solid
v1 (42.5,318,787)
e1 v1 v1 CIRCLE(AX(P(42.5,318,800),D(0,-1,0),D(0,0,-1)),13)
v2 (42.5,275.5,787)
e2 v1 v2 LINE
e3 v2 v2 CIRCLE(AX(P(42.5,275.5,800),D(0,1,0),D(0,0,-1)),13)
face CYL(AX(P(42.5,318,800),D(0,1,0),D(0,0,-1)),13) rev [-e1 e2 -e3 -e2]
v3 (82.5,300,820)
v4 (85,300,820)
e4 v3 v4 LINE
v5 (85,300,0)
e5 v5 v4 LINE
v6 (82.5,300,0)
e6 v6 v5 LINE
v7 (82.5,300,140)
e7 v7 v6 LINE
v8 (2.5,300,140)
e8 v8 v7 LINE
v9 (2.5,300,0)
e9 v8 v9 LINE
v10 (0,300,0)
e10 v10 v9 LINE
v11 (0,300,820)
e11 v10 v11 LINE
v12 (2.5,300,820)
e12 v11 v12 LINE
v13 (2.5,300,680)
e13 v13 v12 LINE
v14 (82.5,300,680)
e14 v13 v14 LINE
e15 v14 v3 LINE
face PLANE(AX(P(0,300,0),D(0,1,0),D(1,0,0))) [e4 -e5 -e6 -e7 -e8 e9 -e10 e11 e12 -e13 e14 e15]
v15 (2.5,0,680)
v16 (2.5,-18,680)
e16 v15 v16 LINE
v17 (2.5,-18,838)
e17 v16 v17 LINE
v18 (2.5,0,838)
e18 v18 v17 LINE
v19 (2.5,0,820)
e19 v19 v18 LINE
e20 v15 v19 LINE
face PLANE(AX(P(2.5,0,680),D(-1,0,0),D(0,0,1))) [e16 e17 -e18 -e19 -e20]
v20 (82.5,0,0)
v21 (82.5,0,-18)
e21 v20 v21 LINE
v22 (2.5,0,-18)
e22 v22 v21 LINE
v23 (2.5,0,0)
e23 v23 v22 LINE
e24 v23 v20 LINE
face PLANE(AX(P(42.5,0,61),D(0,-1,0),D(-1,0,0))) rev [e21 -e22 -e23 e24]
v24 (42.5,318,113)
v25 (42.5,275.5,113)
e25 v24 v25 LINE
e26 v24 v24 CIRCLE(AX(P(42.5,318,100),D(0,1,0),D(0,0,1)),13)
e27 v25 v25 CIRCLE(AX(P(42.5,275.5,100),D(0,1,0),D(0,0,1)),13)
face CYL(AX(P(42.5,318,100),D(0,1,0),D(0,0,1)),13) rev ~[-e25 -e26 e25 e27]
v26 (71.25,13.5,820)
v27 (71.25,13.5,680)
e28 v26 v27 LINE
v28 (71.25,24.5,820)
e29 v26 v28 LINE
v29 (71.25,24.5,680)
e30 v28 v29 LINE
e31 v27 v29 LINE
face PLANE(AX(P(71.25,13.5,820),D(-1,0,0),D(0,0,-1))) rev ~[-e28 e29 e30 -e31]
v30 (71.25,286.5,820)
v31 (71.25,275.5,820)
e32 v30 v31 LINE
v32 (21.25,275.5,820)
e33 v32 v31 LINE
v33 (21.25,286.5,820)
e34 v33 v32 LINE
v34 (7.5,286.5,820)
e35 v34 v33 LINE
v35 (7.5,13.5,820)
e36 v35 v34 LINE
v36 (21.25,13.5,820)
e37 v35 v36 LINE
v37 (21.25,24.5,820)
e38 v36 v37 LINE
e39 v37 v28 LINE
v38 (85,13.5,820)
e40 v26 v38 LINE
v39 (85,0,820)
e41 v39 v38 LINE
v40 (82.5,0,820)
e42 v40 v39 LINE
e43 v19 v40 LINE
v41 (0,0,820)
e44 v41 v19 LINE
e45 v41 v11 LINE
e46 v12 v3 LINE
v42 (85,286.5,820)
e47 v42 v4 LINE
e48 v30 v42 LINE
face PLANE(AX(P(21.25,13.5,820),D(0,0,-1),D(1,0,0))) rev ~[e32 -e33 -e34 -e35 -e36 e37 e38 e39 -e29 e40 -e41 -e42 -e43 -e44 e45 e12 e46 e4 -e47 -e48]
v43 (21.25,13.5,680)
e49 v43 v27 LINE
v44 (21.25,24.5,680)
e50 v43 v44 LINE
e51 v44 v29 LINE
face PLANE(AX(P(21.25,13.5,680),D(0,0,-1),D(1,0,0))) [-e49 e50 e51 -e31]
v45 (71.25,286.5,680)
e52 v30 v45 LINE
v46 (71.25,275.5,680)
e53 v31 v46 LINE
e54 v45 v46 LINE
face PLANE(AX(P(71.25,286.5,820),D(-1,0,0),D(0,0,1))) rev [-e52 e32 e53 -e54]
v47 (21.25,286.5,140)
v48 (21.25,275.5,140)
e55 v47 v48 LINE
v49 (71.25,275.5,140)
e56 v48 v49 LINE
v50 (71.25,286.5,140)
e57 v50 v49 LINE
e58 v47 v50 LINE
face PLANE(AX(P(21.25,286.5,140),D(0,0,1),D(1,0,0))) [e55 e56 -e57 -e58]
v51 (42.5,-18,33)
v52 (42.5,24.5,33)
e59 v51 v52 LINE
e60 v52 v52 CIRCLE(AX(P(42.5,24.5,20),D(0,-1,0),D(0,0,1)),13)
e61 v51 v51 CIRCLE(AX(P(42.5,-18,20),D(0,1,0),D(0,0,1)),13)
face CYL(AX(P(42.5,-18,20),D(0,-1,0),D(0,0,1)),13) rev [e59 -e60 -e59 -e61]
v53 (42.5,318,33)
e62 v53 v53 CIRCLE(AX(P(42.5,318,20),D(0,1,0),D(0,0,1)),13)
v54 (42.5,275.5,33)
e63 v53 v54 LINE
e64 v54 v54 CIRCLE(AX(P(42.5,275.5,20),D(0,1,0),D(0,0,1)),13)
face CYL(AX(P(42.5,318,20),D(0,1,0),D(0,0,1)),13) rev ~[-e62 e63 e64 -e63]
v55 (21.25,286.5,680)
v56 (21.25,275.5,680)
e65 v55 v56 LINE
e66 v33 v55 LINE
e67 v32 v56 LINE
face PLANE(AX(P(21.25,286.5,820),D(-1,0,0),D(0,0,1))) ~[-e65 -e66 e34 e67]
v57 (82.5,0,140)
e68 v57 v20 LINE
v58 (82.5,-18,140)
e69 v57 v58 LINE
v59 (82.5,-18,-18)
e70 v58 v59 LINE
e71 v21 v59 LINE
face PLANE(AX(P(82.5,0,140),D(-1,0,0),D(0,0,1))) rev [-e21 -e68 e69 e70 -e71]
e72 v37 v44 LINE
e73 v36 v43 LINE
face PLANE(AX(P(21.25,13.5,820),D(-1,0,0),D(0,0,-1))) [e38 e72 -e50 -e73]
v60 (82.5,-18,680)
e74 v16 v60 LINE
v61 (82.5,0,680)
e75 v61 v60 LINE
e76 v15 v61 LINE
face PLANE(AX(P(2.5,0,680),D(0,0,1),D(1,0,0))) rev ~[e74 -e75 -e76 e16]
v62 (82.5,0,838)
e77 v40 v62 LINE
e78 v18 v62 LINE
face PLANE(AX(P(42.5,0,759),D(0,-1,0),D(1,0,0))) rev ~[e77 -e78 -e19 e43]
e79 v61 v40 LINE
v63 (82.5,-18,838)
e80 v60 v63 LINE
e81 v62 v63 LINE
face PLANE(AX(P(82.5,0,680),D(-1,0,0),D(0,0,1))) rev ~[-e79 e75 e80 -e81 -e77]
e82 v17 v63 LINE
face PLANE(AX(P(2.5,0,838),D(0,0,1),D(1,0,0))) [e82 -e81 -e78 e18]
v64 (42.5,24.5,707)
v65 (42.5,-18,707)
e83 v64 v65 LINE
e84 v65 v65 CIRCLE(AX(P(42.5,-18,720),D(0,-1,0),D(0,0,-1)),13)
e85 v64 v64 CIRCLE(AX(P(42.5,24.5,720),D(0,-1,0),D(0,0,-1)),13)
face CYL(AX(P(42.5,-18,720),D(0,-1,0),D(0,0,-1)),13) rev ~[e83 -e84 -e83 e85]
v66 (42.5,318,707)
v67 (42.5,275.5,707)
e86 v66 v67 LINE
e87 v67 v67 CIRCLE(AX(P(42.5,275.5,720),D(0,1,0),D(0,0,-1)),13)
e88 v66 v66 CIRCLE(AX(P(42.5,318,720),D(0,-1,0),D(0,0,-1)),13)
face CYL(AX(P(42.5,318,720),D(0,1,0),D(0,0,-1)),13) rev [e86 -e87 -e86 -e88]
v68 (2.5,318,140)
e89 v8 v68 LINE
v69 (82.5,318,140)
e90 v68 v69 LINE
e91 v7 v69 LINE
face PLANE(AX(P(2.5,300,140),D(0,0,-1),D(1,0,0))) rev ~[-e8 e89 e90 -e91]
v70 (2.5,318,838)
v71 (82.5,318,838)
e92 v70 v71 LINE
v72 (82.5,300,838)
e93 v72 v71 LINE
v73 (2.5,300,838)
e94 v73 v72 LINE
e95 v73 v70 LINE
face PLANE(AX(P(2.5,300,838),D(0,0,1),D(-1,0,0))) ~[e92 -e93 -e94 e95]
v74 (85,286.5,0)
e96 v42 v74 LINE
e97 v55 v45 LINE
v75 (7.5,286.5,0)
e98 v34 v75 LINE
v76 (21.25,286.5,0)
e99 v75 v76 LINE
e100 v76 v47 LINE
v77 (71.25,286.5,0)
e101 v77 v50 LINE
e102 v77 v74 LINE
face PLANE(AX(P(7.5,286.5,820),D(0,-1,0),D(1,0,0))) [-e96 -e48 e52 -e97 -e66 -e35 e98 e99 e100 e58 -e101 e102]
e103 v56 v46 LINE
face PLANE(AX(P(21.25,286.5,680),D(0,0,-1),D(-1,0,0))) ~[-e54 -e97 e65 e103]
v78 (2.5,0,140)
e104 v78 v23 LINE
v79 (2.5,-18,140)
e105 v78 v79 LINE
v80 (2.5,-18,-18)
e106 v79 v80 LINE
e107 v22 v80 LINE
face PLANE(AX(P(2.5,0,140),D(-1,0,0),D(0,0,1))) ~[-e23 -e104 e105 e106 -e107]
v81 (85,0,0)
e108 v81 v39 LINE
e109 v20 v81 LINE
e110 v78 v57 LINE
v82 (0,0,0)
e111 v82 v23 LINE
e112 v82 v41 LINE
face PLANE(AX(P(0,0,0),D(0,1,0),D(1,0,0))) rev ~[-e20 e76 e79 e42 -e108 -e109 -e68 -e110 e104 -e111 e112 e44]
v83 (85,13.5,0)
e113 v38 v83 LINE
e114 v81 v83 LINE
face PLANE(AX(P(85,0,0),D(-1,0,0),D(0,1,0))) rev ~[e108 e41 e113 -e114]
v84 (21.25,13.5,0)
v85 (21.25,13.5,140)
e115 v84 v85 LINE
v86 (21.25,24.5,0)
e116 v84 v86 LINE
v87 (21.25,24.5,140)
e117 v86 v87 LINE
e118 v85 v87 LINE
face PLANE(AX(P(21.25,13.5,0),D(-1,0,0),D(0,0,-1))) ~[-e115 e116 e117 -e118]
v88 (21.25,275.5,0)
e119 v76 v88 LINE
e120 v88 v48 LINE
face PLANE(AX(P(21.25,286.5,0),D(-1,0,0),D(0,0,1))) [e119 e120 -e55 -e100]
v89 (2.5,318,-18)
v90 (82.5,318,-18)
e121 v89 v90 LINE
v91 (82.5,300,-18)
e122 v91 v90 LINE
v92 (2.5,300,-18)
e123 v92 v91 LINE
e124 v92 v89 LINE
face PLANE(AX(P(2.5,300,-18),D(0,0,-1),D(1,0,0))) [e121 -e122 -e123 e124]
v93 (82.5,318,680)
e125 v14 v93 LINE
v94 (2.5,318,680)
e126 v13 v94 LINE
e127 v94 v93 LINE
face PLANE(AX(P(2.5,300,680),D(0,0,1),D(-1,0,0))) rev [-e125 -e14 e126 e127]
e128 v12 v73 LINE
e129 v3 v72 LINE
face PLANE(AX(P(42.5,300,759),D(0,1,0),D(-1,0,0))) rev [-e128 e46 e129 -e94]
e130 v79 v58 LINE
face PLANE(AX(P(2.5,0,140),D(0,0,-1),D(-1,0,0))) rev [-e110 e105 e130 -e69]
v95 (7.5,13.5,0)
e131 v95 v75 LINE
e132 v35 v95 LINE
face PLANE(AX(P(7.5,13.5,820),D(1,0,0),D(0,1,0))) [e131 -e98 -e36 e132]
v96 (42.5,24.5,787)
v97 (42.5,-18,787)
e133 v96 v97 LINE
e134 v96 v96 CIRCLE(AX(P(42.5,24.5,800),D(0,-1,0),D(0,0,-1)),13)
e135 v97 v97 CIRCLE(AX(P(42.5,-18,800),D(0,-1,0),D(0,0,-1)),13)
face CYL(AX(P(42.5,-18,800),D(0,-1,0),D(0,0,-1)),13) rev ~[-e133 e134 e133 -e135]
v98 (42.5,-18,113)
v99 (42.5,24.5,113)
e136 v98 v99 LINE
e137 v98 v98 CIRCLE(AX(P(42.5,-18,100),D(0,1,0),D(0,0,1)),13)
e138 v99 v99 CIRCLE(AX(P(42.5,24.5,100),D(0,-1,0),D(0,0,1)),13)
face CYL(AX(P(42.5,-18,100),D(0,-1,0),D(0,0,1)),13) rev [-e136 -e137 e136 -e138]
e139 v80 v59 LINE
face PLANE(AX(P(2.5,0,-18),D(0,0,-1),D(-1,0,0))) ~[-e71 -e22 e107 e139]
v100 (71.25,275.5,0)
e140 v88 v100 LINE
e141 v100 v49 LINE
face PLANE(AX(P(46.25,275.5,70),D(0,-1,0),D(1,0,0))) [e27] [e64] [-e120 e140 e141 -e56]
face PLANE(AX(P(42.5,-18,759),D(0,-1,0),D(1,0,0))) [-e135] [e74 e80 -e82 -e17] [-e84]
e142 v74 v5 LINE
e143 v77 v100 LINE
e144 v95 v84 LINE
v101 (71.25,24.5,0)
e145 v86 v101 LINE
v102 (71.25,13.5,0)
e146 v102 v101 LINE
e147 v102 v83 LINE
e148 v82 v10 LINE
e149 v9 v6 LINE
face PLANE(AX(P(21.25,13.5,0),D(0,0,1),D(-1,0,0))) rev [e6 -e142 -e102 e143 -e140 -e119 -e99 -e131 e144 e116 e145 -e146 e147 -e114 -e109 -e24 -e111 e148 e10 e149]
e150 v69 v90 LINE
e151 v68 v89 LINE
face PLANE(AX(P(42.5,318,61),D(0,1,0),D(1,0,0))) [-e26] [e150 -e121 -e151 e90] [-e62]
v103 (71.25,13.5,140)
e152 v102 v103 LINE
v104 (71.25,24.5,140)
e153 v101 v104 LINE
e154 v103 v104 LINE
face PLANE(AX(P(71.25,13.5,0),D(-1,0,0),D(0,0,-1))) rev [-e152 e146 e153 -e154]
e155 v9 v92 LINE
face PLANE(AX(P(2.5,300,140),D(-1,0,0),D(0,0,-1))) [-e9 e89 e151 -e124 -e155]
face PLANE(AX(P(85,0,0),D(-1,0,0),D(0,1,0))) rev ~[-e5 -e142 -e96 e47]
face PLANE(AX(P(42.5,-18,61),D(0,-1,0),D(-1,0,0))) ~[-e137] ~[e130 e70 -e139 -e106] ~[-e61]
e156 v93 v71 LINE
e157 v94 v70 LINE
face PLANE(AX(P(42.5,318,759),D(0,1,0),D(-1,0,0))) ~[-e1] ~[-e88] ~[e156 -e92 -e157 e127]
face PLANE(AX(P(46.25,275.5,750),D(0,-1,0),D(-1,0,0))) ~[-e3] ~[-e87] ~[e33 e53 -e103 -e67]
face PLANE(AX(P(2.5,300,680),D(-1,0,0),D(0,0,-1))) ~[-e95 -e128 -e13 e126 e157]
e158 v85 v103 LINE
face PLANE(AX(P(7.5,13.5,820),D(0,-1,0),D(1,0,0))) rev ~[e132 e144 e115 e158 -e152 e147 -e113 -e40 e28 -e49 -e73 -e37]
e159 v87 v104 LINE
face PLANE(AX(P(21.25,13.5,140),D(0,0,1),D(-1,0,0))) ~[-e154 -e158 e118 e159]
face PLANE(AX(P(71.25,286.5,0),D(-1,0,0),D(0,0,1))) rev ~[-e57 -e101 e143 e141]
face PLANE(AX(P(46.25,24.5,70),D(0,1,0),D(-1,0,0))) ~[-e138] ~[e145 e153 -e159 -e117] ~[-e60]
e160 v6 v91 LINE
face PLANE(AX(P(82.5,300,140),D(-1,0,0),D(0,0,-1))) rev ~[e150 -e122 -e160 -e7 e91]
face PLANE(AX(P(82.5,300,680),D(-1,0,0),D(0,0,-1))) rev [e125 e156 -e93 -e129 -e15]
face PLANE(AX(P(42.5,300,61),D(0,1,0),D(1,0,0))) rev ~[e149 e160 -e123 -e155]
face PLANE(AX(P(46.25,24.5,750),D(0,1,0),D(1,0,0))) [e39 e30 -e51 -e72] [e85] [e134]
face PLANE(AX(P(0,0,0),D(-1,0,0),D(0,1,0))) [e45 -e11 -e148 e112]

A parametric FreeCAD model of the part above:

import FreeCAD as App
import Part
import Sketcher

V = App.Vector

doc = App.newDocument("Part")
body = doc.addObject("PartDesign::Body", "Body")

# Sketch on XY plane
sketch1 = body.newObject("Sketcher::SketchObject", "Sketch")
sketch1.AttachmentSupport = (doc.getObject("XY_Plane"), [""])
sketch1.MapMode = "FlatFace"
sketch1.addGeometry(Part.LineSegment(V(0, 300, 0), V(0, 0, 0)), False)
sketch1.addGeometry(Part.LineSegment(V(0, 0, 0), V(85, 0, 0)), False)
sketch1.addGeometry(Part.LineSegment(V(85, 0, 0), V(85, 300, 0)), False)
sketch1.addGeometry(Part.LineSegment(V(85, 300, 0), V(0, 300, 0)), False)
sketch1.addConstraint(Sketcher.Constraint("Coincident", 0, 2, 1, 1))
sketch1.addConstraint(Sketcher.Constraint("Coincident", 1, 2, 2, 1))
sketch1.addConstraint(Sketcher.Constraint("Coincident", 2, 2, 3, 1))
sketch1.addConstraint(Sketcher.Constraint("Coincident", 3, 2, 0, 1))
sketch1.addConstraint(Sketcher.Constraint("Vertical", 0))
sketch1.addConstraint(Sketcher.Constraint("Horizontal", 1))
sketch1.addConstraint(Sketcher.Constraint("Vertical", 2))
sketch1.addConstraint(Sketcher.Constraint("Horizontal", 3))
sketch1.addConstraint(Sketcher.Constraint("Coincident", 0, 2, -1, 1))
sketch1.addConstraint(Sketcher.Constraint("DistanceX", 1, 1, 1, 2, 85.0))
sketch1.addConstraint(Sketcher.Constraint("DistanceY", 0, 2, 0, 1, 300.0))
pad1 = body.newObject("PartDesign::Pad", "Pad")
pad1.Profile = sketch1
pad1.Length = 820

# Sketch on XY plane
sketch2 = body.newObject("Sketcher::SketchObject", "Sketch001")
sketch2.AttachmentSupport = (doc.getObject("XY_Plane"), [""])
sketch2.MapMode = "FlatFace"
sketch2.AttachmentOffset = App.Placement(V(0, 0, 820), App.Rotation())
sketch2.addGeometry(Part.LineSegment(V(7.5, 286.5, 0), V(7.5, 13.5, 0)), False)
sketch2.addGeometry(Part.LineSegment(V(7.5, 13.5, 0), V(85, 13.5, 0)), False)
sketch2.addGeometry(Part.LineSegment(V(85, 13.5, 0), V(85, 286.5, 0)), False)
sketch2.addGeometry(Part.LineSegment(V(85, 286.5, 0), V(7.5, 286.5, 0)), False)
sketch2.addConstraint(Sketcher.Constraint("Coincident", 0, 2, 1, 1))
sketch2.addConstraint(Sketcher.Constraint("Coincident", 1, 2, 2, 1))
sketch2.addConstraint(Sketcher.Constraint("Coincident", 2, 2, 3, 1))
sketch2.addConstraint(Sketcher.Constraint("Coincident", 3, 2, 0, 1))
sketch2.addConstraint(Sketcher.Constraint("Vertical", 0))
sketch2.addConstraint(Sketcher.Constraint("Horizontal", 1))
sketch2.addConstraint(Sketcher.Constraint("Vertical", 2))
sketch2.addConstraint(Sketcher.Constraint("Horizontal", 3))
sketch2.addConstraint(Sketcher.Constraint("DistanceY", 0, 2, 0, 1, 273.0))
sketch2.addConstraint(Sketcher.Constraint("DistanceX", 1, 1, 1, 2, 77.5))
sketch2.addConstraint(Sketcher.Constraint("DistanceX", -1, 1, 1, 2, 85.0))
sketch2.addConstraint(Sketcher.Constraint("DistanceY", -1, 1, 0, 2, 13.5))
pocket1 = body.newObject("PartDesign::Pocket", "Pocket")
pocket1.Profile = sketch2
pocket1.Type = "ThroughAll"

# Sketch on XZ plane
sketch3 = body.newObject("Sketcher::SketchObject", "Sketch002")
sketch3.AttachmentSupport = (doc.getObject("XZ_Plane"), [""])
sketch3.MapMode = "FlatFace"
sketch3.AttachmentOffset = App.Placement(V(0, 0, -286.5), App.Rotation())
sketch3.addGeometry(Part.LineSegment(V(21.25, 140, 0), V(21.25, 0, 0)), False)
sketch3.addGeometry(Part.LineSegment(V(21.25, 0, 0), V(71.25, 0, 0)), False)
sketch3.addGeometry(Part.LineSegment(V(71.25, 0, 0), V(71.25, 140, 0)), False)
sketch3.addGeometry(Part.LineSegment(V(71.25, 140, 0), V(21.25, 140, 0)), False)
sketch3.addConstraint(Sketcher.Constraint("Coincident", 0, 2, 1, 1))
sketch3.addConstraint(Sketcher.Constraint("Coincident", 1, 2, 2, 1))
sketch3.addConstraint(Sketcher.Constraint("Coincident", 2, 2, 3, 1))
sketch3.addConstraint(Sketcher.Constraint("Coincident", 3, 2, 0, 1))
sketch3.addConstraint(Sketcher.Constraint("Vertical", 0))
sketch3.addConstraint(Sketcher.Constraint("Horizontal", 1))
sketch3.addConstraint(Sketcher.Constraint("Vertical", 2))
sketch3.addConstraint(Sketcher.Constraint("Horizontal", 3))
sketch3.addConstraint(Sketcher.Constraint("PointOnObject", 0, 2, -1))
sketch3.addConstraint(Sketcher.Constraint("DistanceX", 1, 1, 1, 2, 50.0))
sketch3.addConstraint(Sketcher.Constraint("DistanceY", 0, 2, 0, 1, 140.0))
sketch3.addConstraint(Sketcher.Constraint("DistanceX", -1, 1, 0, 2, 21.25))
pad2 = body.newObject("PartDesign::Pad", "Pad001")
pad2.Profile = sketch3
pad2.Length = 11

# Sketch on XZ plane
sketch4 = body.newObject("Sketcher::SketchObject", "Sketch003")
sketch4.AttachmentSupport = (doc.getObject("XZ_Plane"), [""])
sketch4.MapMode = "FlatFace"
sketch4.AttachmentOffset = App.Placement(V(0, 0, -300), App.Rotation())
sketch4.addGeometry(Part.LineSegment(V(2.5, -18, 0), V(2.5, 140, 0)), False)
sketch4.addGeometry(Part.LineSegment(V(2.5, 140, 0), V(82.5, 140, 0)), False)
sketch4.addGeometry(Part.LineSegment(V(82.5, 140, 0), V(82.5, -18, 0)), False)
sketch4.addGeometry(Part.LineSegment(V(82.5, -18, 0), V(2.5, -18, 0)), False)
sketch4.addConstraint(Sketcher.Constraint("Coincident", 0, 2, 1, 1))
sketch4.addConstraint(Sketcher.Constraint("Coincident", 1, 2, 2, 1))
sketch4.addConstraint(Sketcher.Constraint("Coincident", 2, 2, 3, 1))
sketch4.addConstraint(Sketcher.Constraint("Coincident", 3, 2, 0, 1))
sketch4.addConstraint(Sketcher.Constraint("Vertical", 0))
sketch4.addConstraint(Sketcher.Constraint("Horizontal", 1))
sketch4.addConstraint(Sketcher.Constraint("Vertical", 2))
sketch4.addConstraint(Sketcher.Constraint("Horizontal", 3))
sketch4.addConstraint(Sketcher.Constraint("DistanceX", 1, 1, 1, 2, 80.0))
sketch4.addConstraint(Sketcher.Constraint("DistanceY", 0, 1, 0, 2, 158.0))
sketch4.addConstraint(Sketcher.Constraint("DistanceY", -1, 1, 0, 2, 140.0))
sketch4.addConstraint(Sketcher.Constraint("DistanceX", -1, 1, 0, 2, 2.5))
pad3 = body.newObject("PartDesign::Pad", "Pad002")
pad3.Profile = sketch4
pad3.Length = 18
pad3.Reversed = True

# Sketch on XZ plane
sketch5 = body.newObject("Sketcher::SketchObject", "Sketch004")
sketch5.AttachmentSupport = (doc.getObject("XZ_Plane"), [""])
sketch5.MapMode = "FlatFace"
sketch5.AttachmentOffset = App.Placement(V(0, 0, -318), App.Rotation())
sketch5.addGeometry(Part.Circle(V(42.5, 20, 0), V(0, 0, 1), 13), False)
sketch5.addGeometry(Part.Circle(V(42.5, 100, 0), V(0, 0, 1), 13), False)
sketch5.addConstraint(Sketcher.Constraint("Equal", 0, 1))
sketch5.addConstraint(Sketcher.Constraint("Vertical", 0, 3, 1, 3))
sketch5.addConstraint(Sketcher.Constraint("Diameter", 0, 26.0))
sketch5.addConstraint(Sketcher.Constraint("DistanceY", -1, 1, 0, 3, 20.0))
sketch5.addConstraint(Sketcher.Constraint("DistanceY", -1, 1, 1, 3, 100.0))
sketch5.addConstraint(Sketcher.Constraint("DistanceX", -1, 1, 0, 3, 42.5))
pocket2 = body.newObject("PartDesign::Pocket", "Pocket001")
pocket2.Profile = sketch5
pocket2.Type = "ThroughAll"
pocket2.Reversed = True
doc.recompute()

datumplane = body.newObject("PartDesign::Plane", "DatumPlane")
datumplane.AttachmentSupport = (doc.getObject("XZ_Plane"), [""])
datumplane.MapMode = "FlatFace"
datumplane.AttachmentOffset = App.Placement(V(0, 0, -150), App.Rotation())
mirrored = body.newObject("PartDesign::Mirrored", "Mirrored")
mirrored.Originals = [pad2, pad3, pocket2]
mirrored.MirrorPlane = (datumplane, [""])
body.Tip = mirrored
doc.recompute()

datumplane2 = body.newObject("PartDesign::Plane", "DatumPlane001")
datumplane2.AttachmentSupport = (doc.getObject("XY_Plane"), [""])
datumplane2.MapMode = "FlatFace"
datumplane2.AttachmentOffset = App.Placement(V(0, 0, 410), App.Rotation())
mirrored2 = body.newObject("PartDesign::Mirrored", "Mirrored001")
mirrored2.Originals = [pad2, pad3, pocket2]
mirrored2.MirrorPlane = (datumplane2, [""])
body.Tip = mirrored2

# Sketch on XZ plane
sketch6 = body.newObject("Sketcher::SketchObject", "Sketch005")
sketch6.AttachmentSupport = (doc.getObject("XZ_Plane"), [""])
sketch6.MapMode = "FlatFace"
sketch6.AttachmentOffset = App.Placement(V(0, 0, -13.5), App.Rotation())
sketch6.addGeometry(Part.LineSegment(V(21.25, 680, 0), V(21.25, 820, 0)), False)
sketch6.addGeometry(Part.LineSegment(V(21.25, 820, 0), V(71.25, 820, 0)), False)
sketch6.addGeometry(Part.LineSegment(V(71.25, 820, 0), V(71.25, 680, 0)), False)
sketch6.addGeometry(Part.LineSegment(V(71.25, 680, 0), V(21.25, 680, 0)), False)
sketch6.addConstraint(Sketcher.Constraint("Coincident", 0, 2, 1, 1))
sketch6.addConstraint(Sketcher.Constraint("Coincident", 1, 2, 2, 1))
sketch6.addConstraint(Sketcher.Constraint("Coincident", 2, 2, 3, 1))
sketch6.addConstraint(Sketcher.Constraint("Coincident", 3, 2, 0, 1))
sketch6.addConstraint(Sketcher.Constraint("Vertical", 0))
sketch6.addConstraint(Sketcher.Constraint("Horizontal", 1))
sketch6.addConstraint(Sketcher.Constraint("Vertical", 2))
sketch6.addConstraint(Sketcher.Constraint("Horizontal", 3))
sketch6.addConstraint(Sketcher.Constraint("DistanceX", 1, 1, 1, 2, 50.0))
sketch6.addConstraint(Sketcher.Constraint("DistanceY", 0, 1, 0, 2, 140.0))
sketch6.addConstraint(Sketcher.Constraint("DistanceY", -1, 1, 0, 2, 820.0))
sketch6.addConstraint(Sketcher.Constraint("DistanceX", -1, 1, 0, 2, 21.25))
pad4 = body.newObject("PartDesign::Pad", "Pad003")
pad4.Profile = sketch6
pad4.Length = 11
pad4.Reversed = True

# Sketch on XZ plane
sketch7 = body.newObject("Sketcher::SketchObject", "Sketch006")
sketch7.AttachmentSupport = (doc.getObject("XZ_Plane"), [""])
sketch7.MapMode = "FlatFace"
sketch7.addGeometry(Part.LineSegment(V(2.5, 838, 0), V(2.5, 680, 0)), False)
sketch7.addGeometry(Part.LineSegment(V(2.5, 680, 0), V(82.5, 680, 0)), False)
sketch7.addGeometry(Part.LineSegment(V(82.5, 680, 0), V(82.5, 838, 0)), False)
sketch7.addGeometry(Part.LineSegment(V(82.5, 838, 0), V(2.5, 838, 0)), False)
sketch7.addConstraint(Sketcher.Constraint("Coincident", 0, 2, 1, 1))
sketch7.addConstraint(Sketcher.Constraint("Coincident", 1, 2, 2, 1))
sketch7.addConstraint(Sketcher.Constraint("Coincident", 2, 2, 3, 1))
sketch7.addConstraint(Sketcher.Constraint("Coincident", 3, 2, 0, 1))
sketch7.addConstraint(Sketcher.Constraint("Vertical", 0))
sketch7.addConstraint(Sketcher.Constraint("Horizontal", 1))
sketch7.addConstraint(Sketcher.Constraint("Vertical", 2))
sketch7.addConstraint(Sketcher.Constraint("Horizontal", 3))
sketch7.addConstraint(Sketcher.Constraint("DistanceX", 1, 1, 1, 2, 80.0))
sketch7.addConstraint(Sketcher.Constraint("DistanceY", 0, 2, 0, 1, 158.0))
sketch7.addConstraint(Sketcher.Constraint("DistanceY", -1, 1, 0, 2, 680.0))
sketch7.addConstraint(Sketcher.Constraint("DistanceX", -1, 1, 0, 2, 2.5))
pad5 = body.newObject("PartDesign::Pad", "Pad004")
pad5.Profile = sketch7
pad5.Length = 18

# Sketch on XZ plane
sketch8 = body.newObject("Sketcher::SketchObject", "Sketch007")
sketch8.AttachmentSupport = (doc.getObject("XZ_Plane"), [""])
sketch8.MapMode = "FlatFace"
sketch8.AttachmentOffset = App.Placement(V(0, 0, 18), App.Rotation())
sketch8.addGeometry(Part.Circle(V(42.5, 800, 0), V(0, 0, 1), 13), False)
sketch8.addGeometry(Part.Circle(V(42.5, 720, 0), V(0, 0, 1), 13), False)
sketch8.addConstraint(Sketcher.Constraint("Equal", 0, 1))
sketch8.addConstraint(Sketcher.Constraint("Vertical", 0, 3, 1, 3))
sketch8.addConstraint(Sketcher.Constraint("Diameter", 0, 26.0))
sketch8.addConstraint(Sketcher.Constraint("DistanceY", -1, 1, 0, 3, 800.0))
sketch8.addConstraint(Sketcher.Constraint("DistanceY", -1, 1, 1, 3, 720.0))
sketch8.addConstraint(Sketcher.Constraint("DistanceX", -1, 1, 0, 3, 42.5))
pocket3 = body.newObject("PartDesign::Pocket", "Pocket002")
pocket3.Profile = sketch8
pocket3.Type = "ThroughAll"

doc.recompute()
